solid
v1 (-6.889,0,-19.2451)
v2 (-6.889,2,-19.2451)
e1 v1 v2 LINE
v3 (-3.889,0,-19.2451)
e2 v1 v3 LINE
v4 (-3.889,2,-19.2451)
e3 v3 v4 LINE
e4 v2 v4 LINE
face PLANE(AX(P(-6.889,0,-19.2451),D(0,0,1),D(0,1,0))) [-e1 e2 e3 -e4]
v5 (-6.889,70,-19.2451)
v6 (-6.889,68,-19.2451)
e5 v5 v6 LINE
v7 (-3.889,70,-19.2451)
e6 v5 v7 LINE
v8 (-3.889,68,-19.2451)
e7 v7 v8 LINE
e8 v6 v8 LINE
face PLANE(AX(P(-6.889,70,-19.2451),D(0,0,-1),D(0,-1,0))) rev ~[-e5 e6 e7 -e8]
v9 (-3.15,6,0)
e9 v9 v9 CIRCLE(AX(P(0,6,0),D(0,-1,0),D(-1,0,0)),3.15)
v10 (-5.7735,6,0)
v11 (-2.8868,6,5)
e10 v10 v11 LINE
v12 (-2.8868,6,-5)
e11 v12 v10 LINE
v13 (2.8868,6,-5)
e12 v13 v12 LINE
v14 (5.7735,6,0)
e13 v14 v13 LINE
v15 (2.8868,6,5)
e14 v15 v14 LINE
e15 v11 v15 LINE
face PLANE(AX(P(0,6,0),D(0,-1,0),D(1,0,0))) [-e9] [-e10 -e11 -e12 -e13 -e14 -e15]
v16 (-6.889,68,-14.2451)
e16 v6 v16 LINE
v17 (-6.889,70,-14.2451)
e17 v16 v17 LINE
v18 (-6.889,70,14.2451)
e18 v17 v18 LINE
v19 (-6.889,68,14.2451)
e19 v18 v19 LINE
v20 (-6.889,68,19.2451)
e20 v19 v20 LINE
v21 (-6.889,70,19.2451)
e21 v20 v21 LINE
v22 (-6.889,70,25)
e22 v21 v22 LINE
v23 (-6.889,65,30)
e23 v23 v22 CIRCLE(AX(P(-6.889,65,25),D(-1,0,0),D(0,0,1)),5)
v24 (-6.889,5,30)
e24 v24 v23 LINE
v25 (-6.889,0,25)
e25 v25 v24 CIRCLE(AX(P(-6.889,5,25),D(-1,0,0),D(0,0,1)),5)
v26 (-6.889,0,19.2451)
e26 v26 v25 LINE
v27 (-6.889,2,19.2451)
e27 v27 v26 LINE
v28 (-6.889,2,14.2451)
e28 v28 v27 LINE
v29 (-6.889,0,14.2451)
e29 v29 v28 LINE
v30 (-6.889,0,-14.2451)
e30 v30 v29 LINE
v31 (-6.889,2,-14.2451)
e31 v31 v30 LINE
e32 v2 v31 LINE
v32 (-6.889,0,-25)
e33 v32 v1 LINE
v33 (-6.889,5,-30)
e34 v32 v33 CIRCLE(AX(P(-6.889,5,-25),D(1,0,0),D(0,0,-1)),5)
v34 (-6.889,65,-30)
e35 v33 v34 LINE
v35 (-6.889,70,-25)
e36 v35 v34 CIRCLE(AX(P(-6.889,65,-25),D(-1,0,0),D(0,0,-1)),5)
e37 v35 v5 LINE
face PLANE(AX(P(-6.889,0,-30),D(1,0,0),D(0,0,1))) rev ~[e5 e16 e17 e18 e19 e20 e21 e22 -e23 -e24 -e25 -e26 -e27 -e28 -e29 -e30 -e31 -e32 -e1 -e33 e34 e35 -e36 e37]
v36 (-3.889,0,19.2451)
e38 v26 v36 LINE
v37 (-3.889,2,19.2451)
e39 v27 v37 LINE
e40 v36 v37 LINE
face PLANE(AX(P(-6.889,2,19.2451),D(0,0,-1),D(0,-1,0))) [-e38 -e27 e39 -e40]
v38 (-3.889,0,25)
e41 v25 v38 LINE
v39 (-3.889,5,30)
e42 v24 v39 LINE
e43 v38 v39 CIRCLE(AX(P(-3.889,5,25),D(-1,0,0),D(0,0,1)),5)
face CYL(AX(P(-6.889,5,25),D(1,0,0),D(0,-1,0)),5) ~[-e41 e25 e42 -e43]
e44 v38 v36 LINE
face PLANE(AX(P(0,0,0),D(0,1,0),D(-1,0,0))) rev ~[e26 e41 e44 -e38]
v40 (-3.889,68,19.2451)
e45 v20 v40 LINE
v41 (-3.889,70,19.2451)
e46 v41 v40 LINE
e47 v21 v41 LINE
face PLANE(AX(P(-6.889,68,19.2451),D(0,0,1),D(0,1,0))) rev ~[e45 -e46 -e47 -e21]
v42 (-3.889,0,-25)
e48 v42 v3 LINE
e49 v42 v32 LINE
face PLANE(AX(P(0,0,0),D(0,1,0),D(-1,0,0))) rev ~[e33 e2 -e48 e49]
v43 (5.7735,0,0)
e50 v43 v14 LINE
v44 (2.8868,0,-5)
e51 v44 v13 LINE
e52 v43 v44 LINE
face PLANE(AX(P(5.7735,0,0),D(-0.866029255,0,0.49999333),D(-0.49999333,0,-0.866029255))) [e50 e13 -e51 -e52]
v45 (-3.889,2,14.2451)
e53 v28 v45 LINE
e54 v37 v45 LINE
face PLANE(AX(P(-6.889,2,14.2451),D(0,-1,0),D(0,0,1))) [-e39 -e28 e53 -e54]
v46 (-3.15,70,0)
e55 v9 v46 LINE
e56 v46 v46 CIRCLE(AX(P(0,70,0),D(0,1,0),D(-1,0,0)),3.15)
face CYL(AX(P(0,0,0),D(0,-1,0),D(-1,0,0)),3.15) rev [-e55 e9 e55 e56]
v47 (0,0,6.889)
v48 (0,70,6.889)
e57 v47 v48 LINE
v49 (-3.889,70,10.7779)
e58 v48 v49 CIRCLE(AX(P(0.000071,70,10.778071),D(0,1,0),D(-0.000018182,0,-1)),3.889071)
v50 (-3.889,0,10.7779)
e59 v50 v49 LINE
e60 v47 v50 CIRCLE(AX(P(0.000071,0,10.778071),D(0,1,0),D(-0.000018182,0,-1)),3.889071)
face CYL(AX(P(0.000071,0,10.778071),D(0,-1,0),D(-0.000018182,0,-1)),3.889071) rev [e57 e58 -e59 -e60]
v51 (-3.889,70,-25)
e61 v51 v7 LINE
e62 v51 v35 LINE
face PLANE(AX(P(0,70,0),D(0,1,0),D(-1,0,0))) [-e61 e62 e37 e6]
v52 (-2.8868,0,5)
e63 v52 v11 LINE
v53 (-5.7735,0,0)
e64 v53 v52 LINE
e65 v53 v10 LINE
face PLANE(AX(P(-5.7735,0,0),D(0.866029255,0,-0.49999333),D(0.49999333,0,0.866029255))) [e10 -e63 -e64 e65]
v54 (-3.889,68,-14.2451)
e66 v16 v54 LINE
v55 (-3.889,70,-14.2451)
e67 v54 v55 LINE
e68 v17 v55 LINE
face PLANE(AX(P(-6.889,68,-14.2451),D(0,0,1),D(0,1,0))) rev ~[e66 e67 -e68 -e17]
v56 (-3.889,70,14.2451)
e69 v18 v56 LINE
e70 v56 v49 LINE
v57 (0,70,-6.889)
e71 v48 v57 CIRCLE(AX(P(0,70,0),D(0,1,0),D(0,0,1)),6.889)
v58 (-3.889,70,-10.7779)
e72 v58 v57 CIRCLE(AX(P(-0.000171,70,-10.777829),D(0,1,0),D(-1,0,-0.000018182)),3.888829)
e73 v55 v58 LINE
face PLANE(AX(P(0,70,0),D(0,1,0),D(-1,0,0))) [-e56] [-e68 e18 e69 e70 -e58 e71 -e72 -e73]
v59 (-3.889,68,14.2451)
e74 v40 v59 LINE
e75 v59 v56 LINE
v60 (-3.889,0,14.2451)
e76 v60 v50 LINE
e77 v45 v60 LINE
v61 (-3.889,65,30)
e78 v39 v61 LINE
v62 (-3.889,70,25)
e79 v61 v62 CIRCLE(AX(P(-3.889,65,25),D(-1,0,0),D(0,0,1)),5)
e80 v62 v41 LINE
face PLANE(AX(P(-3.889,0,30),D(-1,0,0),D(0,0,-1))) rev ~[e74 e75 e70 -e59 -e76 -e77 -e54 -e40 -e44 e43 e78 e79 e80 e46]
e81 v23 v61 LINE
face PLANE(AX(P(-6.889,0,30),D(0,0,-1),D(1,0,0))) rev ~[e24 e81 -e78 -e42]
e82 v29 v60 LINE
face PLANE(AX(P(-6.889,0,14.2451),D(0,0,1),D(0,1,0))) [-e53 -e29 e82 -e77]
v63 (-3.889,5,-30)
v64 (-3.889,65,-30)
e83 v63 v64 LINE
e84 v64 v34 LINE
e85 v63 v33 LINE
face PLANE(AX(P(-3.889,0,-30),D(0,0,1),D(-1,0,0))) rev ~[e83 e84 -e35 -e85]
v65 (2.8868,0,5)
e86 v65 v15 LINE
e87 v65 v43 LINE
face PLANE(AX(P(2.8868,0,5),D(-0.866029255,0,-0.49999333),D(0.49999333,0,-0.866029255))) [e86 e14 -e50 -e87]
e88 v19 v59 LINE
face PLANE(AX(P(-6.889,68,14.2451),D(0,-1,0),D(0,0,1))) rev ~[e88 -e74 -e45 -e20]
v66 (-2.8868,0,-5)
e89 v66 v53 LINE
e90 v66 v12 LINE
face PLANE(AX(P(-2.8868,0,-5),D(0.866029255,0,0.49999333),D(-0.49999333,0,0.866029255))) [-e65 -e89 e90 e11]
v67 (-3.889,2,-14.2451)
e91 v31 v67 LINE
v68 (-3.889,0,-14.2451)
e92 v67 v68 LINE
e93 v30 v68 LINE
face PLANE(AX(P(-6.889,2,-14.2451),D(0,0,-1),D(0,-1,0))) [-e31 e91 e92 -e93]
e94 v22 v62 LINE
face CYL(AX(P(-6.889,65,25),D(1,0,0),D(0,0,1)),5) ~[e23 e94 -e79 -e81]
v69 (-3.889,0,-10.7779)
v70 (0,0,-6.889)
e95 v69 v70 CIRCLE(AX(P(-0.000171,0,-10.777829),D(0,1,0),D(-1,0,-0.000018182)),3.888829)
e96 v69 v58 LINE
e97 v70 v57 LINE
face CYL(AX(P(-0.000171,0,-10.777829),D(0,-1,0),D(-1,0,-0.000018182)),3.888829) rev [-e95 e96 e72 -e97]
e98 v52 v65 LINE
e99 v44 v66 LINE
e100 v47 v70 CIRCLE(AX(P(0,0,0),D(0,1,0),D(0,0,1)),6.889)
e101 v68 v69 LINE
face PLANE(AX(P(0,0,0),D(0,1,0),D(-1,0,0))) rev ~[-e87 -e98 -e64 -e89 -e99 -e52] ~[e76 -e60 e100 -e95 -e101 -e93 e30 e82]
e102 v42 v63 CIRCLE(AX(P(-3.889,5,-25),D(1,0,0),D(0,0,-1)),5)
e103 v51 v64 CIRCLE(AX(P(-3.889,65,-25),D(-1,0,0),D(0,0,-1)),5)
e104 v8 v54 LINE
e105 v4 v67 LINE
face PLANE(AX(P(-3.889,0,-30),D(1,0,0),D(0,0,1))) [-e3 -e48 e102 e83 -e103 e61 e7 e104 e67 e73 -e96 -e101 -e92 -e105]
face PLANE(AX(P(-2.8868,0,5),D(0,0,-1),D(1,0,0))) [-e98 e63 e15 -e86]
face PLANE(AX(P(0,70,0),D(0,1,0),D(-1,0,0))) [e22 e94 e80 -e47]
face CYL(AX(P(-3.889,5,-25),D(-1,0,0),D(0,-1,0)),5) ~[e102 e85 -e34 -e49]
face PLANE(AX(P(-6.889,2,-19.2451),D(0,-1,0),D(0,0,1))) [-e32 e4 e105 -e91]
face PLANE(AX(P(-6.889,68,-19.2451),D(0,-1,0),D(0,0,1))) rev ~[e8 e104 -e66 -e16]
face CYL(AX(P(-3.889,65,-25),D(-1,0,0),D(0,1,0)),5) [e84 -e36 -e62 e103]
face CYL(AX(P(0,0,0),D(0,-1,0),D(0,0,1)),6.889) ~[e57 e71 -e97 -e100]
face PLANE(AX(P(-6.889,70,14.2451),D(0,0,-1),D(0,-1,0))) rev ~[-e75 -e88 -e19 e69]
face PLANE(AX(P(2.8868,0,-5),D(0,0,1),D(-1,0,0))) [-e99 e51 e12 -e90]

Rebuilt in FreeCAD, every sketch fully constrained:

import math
import FreeCAD as App
import Part
import Sketcher
Q = App.Units.Quantity


def edges_at(feature, points):
    """Names of the edges that pass closest to the given points."""
    edges = feature.Shape.Edges
    near = lambda p: min(range(len(edges)), key=lambda i: edges[i].distToShape(Part.Vertex(*p))[0])
    return sorted({f"Edge{near(p) + 1}" for p in points})

doc = App.newDocument("Part")
body = doc.addObject("PartDesign::Body", "Body")

sketch1 = doc.addObject("Sketcher::SketchObject", "Sketch")
body.addObject(sketch1)
sketch1.AttachmentSupport = (doc.XZ_Plane, [""])
sketch1.MapMode = "FlatFace"
sketch1.addGeometry(Part.LineSegment(App.Vector(-6.9, -30, 0), App.Vector(-6.9, 30, 0)), False)
sketch1.addGeometry(Part.LineSegment(App.Vector(-6.9, 30, 0), App.Vector(-3.9, 30, 0)), False)
sketch1.addGeometry(Part.LineSegment(App.Vector(-3.9, 30, 0), App.Vector(-3.9, 10.8, 0)), False)
sketch1.addGeometry(Part.ArcOfCircle(Part.Circle(App.Vector(0, 10.8, 0), App.Vector(0, 0, 1), 3.9), math.radians(180), math.radians(270)), False)
sketch1.addGeometry(Part.ArcOfCircle(Part.Circle(App.Vector(0, 0, 0), App.Vector(0, 0, 1), 6.9), math.radians(-90), math.radians(90)), False)
sketch1.addGeometry(Part.ArcOfCircle(Part.Circle(App.Vector(0, -10.8, 0), App.Vector(0, 0, 1), 3.9), math.radians(90), math.radians(180)), False)
sketch1.addGeometry(Part.LineSegment(App.Vector(-3.9, -10.8, 0), App.Vector(-3.9, -30, 0)), False)
sketch1.addGeometry(Part.LineSegment(App.Vector(-3.9, -30, 0), App.Vector(-6.9, -30, 0)), False)
sketch1.addGeometry(Part.Circle(App.Vector(0, 0, 0), App.Vector(0, 0, 1), 3.1), False)
sketch1.addConstraint(Sketcher.Constraint("Coincident", 0, 2, 1, 1))
sketch1.addConstraint(Sketcher.Constraint("Coincident", 1, 2, 2, 1))
sketch1.addConstraint(Sketcher.Constraint("Tangent", 2, 2, 3, 1))
sketch1.addConstraint(Sketcher.Constraint("Tangent", 3, 2, 4, 2))
sketch1.addConstraint(Sketcher.Constraint("Tangent", 4, 1, 5, 1))
sketch1.addConstraint(Sketcher.Constraint("Tangent", 5, 2, 6, 1))
sketch1.addConstraint(Sketcher.Constraint("Coincident", 6, 2, 7, 1))
sketch1.addConstraint(Sketcher.Constraint("Coincident", 7, 2, 0, 1))
sketch1.addConstraint(Sketcher.Constraint("Vertical", 0))
sketch1.addConstraint(Sketcher.Constraint("Horizontal", 1))
sketch1.addConstraint(Sketcher.Constraint("Vertical", 2))
sketch1.addConstraint(Sketcher.Constraint("Vertical", 6))
sketch1.addConstraint(Sketcher.Constraint("Horizontal", 7))
sketch1.addConstraint(Sketcher.Constraint("Coincident", 4, 3, -1, 1))
sketch1.addConstraint(Sketcher.Constraint("Coincident", 8, 3, -1, 1))
sketch1.addConstraint(Sketcher.Constraint("Equal", 3, 5))
sketch1.addConstraint(Sketcher.Constraint("Symmetric", 1, 2, 6, 2, -1))
sketch1.addConstraint(Sketcher.Constraint("PointOnObject", 3, 3, -2))
sketch1.addConstraint(Sketcher.Constraint("Diameter", 8, 6.3))
sketch1.addConstraint(Sketcher.Constraint("DistanceX", 1, 1, 1, 2, 3.0))
sketch1.addConstraint(Sketcher.Constraint("DistanceY", 0, 1, 0, 2, 60.0))
sketch1.addConstraint(Sketcher.Constraint("Radius", 3, 3.889))
sketch1.addConstraint(Sketcher.Constraint("Radius", 4, 6.889))
pad1 = doc.addObject("PartDesign::Pad", "Pad")
body.addObject(pad1)
pad1.Profile = sketch1
pad1.Length = 70
pad1.Reversed = True

sketch2 = doc.addObject("Sketcher::SketchObject", "Sketch001")
body.addObject(sketch2)
sketch2.AttachmentSupport = (doc.XZ_Plane, [""])
sketch2.MapMode = "FlatFace"
sketch2.addGeometry(Part.LineSegment(App.Vector(-3, 5, 0), App.Vector(-6, 0, 0)), False)
sketch2.addGeometry(Part.LineSegment(App.Vector(-6, 0, 0), App.Vector(-3, -5, 0)), False)
sketch2.addGeometry(Part.LineSegment(App.Vector(-3, -5, 0), App.Vector(3, -5, 0)), False)
sketch2.addGeometry(Part.LineSegment(App.Vector(3, -5, 0), App.Vector(6, 0, 0)), False)
sketch2.addGeometry(Part.LineSegment(App.Vector(6, 0, 0), App.Vector(3, 5, 0)), False)
sketch2.addGeometry(Part.LineSegment(App.Vector(3, 5, 0), App.Vector(-3, 5, 0)), False)
sketch2.addConstraint(Sketcher.Constraint("Coincident", 0, 2, 1, 1))
sketch2.addConstraint(Sketcher.Constraint("Coincident", 1, 2, 2, 1))
sketch2.addConstraint(Sketcher.Constraint("Coincident", 2, 2, 3, 1))
sketch2.addConstraint(Sketcher.Constraint("Coincident", 3, 2, 4, 1))
sketch2.addConstraint(Sketcher.Constraint("Coincident", 4, 2, 5, 1))
sketch2.addConstraint(Sketcher.Constraint("Coincident", 5, 2, 0, 1))
sketch2.addConstraint(Sketcher.Constraint("Horizontal", 2))
sketch2.addConstraint(Sketcher.Constraint("Horizontal", 5))
sketch2.addConstraint(Sketcher.Constraint("Symmetric", 0, 2, 3, 2, -1, 1))
sketch2.addConstraint(Sketcher.Constraint("Symmetric", 1, 2, 4, 2, -1, 1))
sketch2.addConstraint(Sketcher.Constraint("PointOnObject", 0, 2, -1))
sketch2.addConstraint(Sketcher.Constraint("Parallel", 0, 3))
sketch2.addConstraint(Sketcher.Constraint("Vertical", 2, 2, 4, 2))
sketch2.addConstraint(Sketcher.Constraint("DistanceY", 2, 2, 4, 2, 10.0))
sketch2.addConstraint(Sketcher.Constraint("Angle", 0, Q("-119.9996 deg")))
sketch2.addConstraint(Sketcher.Constraint("DistanceX", 2, 1, 2, 2, 5.7736))
pocket1 = doc.addObject("PartDesign::Pocket", "Pocket")
body.addObject(pocket1)
pocket1.Profile = sketch2
pocket1.Length = 6

sketch3 = doc.addObject("Sketcher::SketchObject", "Sketch002")
body.addObject(sketch3)
sketch3.AttachmentSupport = (doc.YZ_Plane, [""])
sketch3.MapMode = "FlatFace"
sketch3.AttachmentOffset = App.Placement(App.Vector(0, 0, -6.889), App.Rotation())
sketch3.addGeometry(Part.LineSegment(App.Vector(2, 14.2, 0), App.Vector(0, 14.2, 0)), False)
sketch3.addGeometry(Part.LineSegment(App.Vector(0, 14.2, 0), App.Vector(0, 19.2, 0)), False)
sketch3.addGeometry(Part.LineSegment(App.Vector(0, 19.2, 0), App.Vector(2, 19.2, 0)), False)
sketch3.addGeometry(Part.LineSegment(App.Vector(2, 19.2, 0), App.Vector(2, 14.2, 0)), False)
sketch3.addGeometry(Part.LineSegment(App.Vector(2, -14.2, 0), App.Vector(2, -19.2, 0)), False)
sketch3.addGeometry(Part.LineSegment(App.Vector(2, -19.2, 0), App.Vector(0, -19.2, 0)), False)
sketch3.addGeometry(Part.LineSegment(App.Vector(0, -19.2, 0), App.Vector(0, -14.2, 0)), False)
sketch3.addGeometry(Part.LineSegment(App.Vector(0, -14.2, 0), App.Vector(2, -14.2, 0)), False)
sketch3.addGeometry(Part.LineSegment(App.Vector(70, 19.2, 0), App.Vector(70, 14.2, 0)), False)
sketch3.addGeometry(Part.LineSegment(App.Vector(70, 14.2, 0), App.Vector(68, 14.2, 0)), False)
sketch3.addGeometry(Part.LineSegment(App.Vector(68, 14.2, 0), App.Vector(68, 19.2, 0)), False)
sketch3.addGeometry(Part.LineSegment(App.Vector(68, 19.2, 0), App.Vector(70, 19.2, 0)), False)
sketch3.addGeometry(Part.LineSegment(App.Vector(70, -14.2, 0), App.Vector(70, -19.2, 0)), False)
sketch3.addGeometry(Part.LineSegment(App.Vector(70, -19.2, 0), App.Vector(68, -19.2, 0)), False)
sketch3.addGeometry(Part.LineSegment(App.Vector(68, -19.2, 0), App.Vector(68, -14.2, 0)), False)
sketch3.addGeometry(Part.LineSegment(App.Vector(68, -14.2, 0), App.Vector(70, -14.2, 0)), False)
sketch3.addConstraint(Sketcher.Constraint("Coincident", 0, 2, 1, 1))
sketch3.addConstraint(Sketcher.Constraint("Coincident", 1, 2, 2, 1))
sketch3.addConstraint(Sketcher.Constraint("Coincident", 2, 2, 3, 1))
sketch3.addConstraint(Sketcher.Constraint("Coincident", 3, 2, 0, 1))
sketch3.addConstraint(Sketcher.Constraint("Coincident", 4, 2, 5, 1))
sketch3.addConstraint(Sketcher.Constraint("Coincident", 5, 2, 6, 1))
sketch3.addConstraint(Sketcher.Constraint("Coincident", 6, 2, 7, 1))
sketch3.addConstraint(Sketcher.Constraint("Coincident", 7, 2, 4, 1))
sketch3.addConstraint(Sketcher.Constraint("Coincident", 8, 2, 9, 1))
sketch3.addConstraint(Sketcher.Constraint("Coincident", 9, 2, 10, 1))
sketch3.addConstraint(Sketcher.Constraint("Coincident", 10, 2, 11, 1))
sketch3.addConstraint(Sketcher.Constraint("Coincident", 11, 2, 8, 1))
sketch3.addConstraint(Sketcher.Constraint("Coincident", 12, 2, 13, 1))
sketch3.addConstraint(Sketcher.Constraint("Coincident", 13, 2, 14, 1))
sketch3.addConstraint(Sketcher.Constraint("Coincident", 14, 2, 15, 1))
sketch3.addConstraint(Sketcher.Constraint("Coincident", 15, 2, 12, 1))
sketch3.addConstraint(Sketcher.Constraint("Horizontal", 0))
sketch3.addConstraint(Sketcher.Constraint("Vertical", 1))
sketch3.addConstraint(Sketcher.Constraint("Horizontal", 2))
sketch3.addConstraint(Sketcher.Constraint("Vertical", 3))
sketch3.addConstraint(Sketcher.Constraint("Vertical", 4))
sketch3.addConstraint(Sketcher.Constraint("Horizontal", 5))
sketch3.addConstraint(Sketcher.Constraint("Vertical", 6))
sketch3.addConstraint(Sketcher.Constraint("Horizontal", 7))
sketch3.addConstraint(Sketcher.Constraint("Vertical", 8))
sketch3.addConstraint(Sketcher.Constraint("Horizontal", 9))
sketch3.addConstraint(Sketcher.Constraint("Vertical", 10))
sketch3.addConstraint(Sketcher.Constraint("Horizontal", 11))
sketch3.addConstraint(Sketcher.Constraint("Vertical", 12))
sketch3.addConstraint(Sketcher.Constraint("Horizontal", 13))
sketch3.addConstraint(Sketcher.Constraint("Vertical", 14))
sketch3.addConstraint(Sketcher.Constraint("Horizontal", 15))
sketch3.addConstraint(Sketcher.Constraint("Symmetric", 1, 2, 5, 2, -1, 1))
sketch3.addConstraint(Sketcher.Constraint("Symmetric", 0, 2, 6, 2, -1))
sketch3.addConstraint(Sketcher.Constraint("Symmetric", 11, 2, 12, 2, -1))
sketch3.addConstraint(Sketcher.Constraint("Symmetric", 9, 2, 14, 2, -1))
sketch3.addConstraint(Sketcher.Constraint("Horizontal", 3, 2, 8, 2))
sketch3.addConstraint(Sketcher.Constraint("Horizontal", 2, 2, 10, 2))
sketch3.addConstraint(Sketcher.Constraint("Vertical", 3, 2, 4, 2))
sketch3.addConstraint(Sketcher.Constraint("Equal", 7, 9))
sketch3.addConstraint(Sketcher.Constraint("DistanceX", 0, 2, 0, 1, 2.0))
sketch3.addConstraint(Sketcher.Constraint("DistanceY", 1, 1, 1, 2, 5.0))
sketch3.addConstraint(Sketcher.Constraint("DistanceX", -1, 1, 8, 2, 70.0))
sketch3.addConstraint(Sketcher.Constraint("DistanceY", -1, 1, 0, 2, 14.245))
pocket2 = doc.addObject("PartDesign::Pocket", "Pocket001")
body.addObject(pocket2)
pocket2.Profile = sketch3
pocket2.Length = 3
pocket2.Reversed = True
doc.recompute()

fillet = doc.addObject("PartDesign::Fillet", "Fillet")
body.addObject(fillet)
fillet.Base = (pocket2, edges_at(pocket2, [
    (-5.389, 70, -30),
    (-5.389, 70, 30),
    (-5.389, 0, 30),
    (-5.389, 0, -30),
]))
fillet.Radius = 5

doc.recompute()
